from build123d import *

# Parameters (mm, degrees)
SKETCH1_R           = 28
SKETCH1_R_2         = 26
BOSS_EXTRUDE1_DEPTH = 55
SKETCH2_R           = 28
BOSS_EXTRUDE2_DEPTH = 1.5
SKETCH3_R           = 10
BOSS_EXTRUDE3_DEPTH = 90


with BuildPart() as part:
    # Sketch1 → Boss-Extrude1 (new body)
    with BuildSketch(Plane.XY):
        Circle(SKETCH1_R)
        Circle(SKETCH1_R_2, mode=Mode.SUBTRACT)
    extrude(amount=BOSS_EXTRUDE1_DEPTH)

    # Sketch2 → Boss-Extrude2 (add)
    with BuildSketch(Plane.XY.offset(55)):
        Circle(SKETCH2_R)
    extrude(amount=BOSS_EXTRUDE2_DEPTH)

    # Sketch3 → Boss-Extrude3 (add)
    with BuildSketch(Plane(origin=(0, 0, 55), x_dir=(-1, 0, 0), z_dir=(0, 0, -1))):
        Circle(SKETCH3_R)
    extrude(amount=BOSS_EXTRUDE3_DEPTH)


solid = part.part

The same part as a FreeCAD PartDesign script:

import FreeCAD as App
import Part
import Sketcher
from FreeCAD import Vector
Q = App.Units.Quantity

doc = App.newDocument("Part")
body = doc.addObject("PartDesign::Body", "Body")

# Sketch on XY plane
sketch1 = doc.addObject("Sketcher::SketchObject", "Sketch")
body.addObject(sketch1)
sketch1.AttachmentSupport = (doc.XY_Plane, [""])
sketch1.MapMode = "FlatFace"
sketch1.addGeometry(Part.Circle(Vector(0, 0, 0), Vector(0, 0, 1), 28), False)
sketch1.addGeometry(Part.Circle(Vector(0, 0, 0), Vector(0, 0, 1), 26), False)
sketch1.addConstraint(Sketcher.Constraint("Coincident", 0, 3, -1, 1))
sketch1.addConstraint(Sketcher.Constraint("Coincident", 1, 3, -1, 1))
sketch1.addConstraint(Sketcher.Constraint("Diameter", 0, Q("56 mm")))
sketch1.addConstraint(Sketcher.Constraint("Diameter", 1, Q("52 mm")))
pad1 = doc.addObject("PartDesign::Pad", "Pad")
body.addObject(pad1)
pad1.Profile = sketch1
pad1.Length = 55

# Sketch on XY plane
sketch2 = doc.addObject("Sketcher::SketchObject", "Sketch001")
body.addObject(sketch2)
sketch2.AttachmentSupport = (doc.XY_Plane, [""])
sketch2.MapMode = "FlatFace"
sketch2.AttachmentOffset = App.Placement(Vector(0, 0, 55), App.Rotation())
sketch2.addGeometry(Part.Circle(Vector(0, 0, 0), Vector(0, 0, 1), 28), False)
sketch2.addConstraint(Sketcher.Constraint("Coincident", 0, 3, -1, 1))
sketch2.addConstraint(Sketcher.Constraint("Diameter", 0, Q("56 mm")))
pad2 = doc.addObject("PartDesign::Pad", "Pad001")
body.addObject(pad2)
pad2.Profile = sketch2
pad2.Length = 1.5

# Sketch on XY plane
sketch3 = doc.addObject("Sketcher::SketchObject", "Sketch002")
body.addObject(sketch3)
sketch3.AttachmentSupport = (doc.XY_Plane, [""])
sketch3.MapMode = "FlatFace"
sketch3.AttachmentOffset = App.Placement(Vector(0, 0, 55), App.Rotation())
sketch3.addGeometry(Part.Circle(Vector(0, 0, 0), Vector(0, 0, 1), 10), False)
sketch3.addConstraint(Sketcher.Constraint("Coincident", 0, 3, -1, 1))
sketch3.addConstraint(Sketcher.Constraint("Diameter", 0, Q("20 mm")))
pad3 = doc.addObject("PartDesign::Pad", "Pad002")
body.addObject(pad3)
pad3.Profile = sketch3
pad3.Length = 90
pad3.Reversed = True

doc.recompute()
